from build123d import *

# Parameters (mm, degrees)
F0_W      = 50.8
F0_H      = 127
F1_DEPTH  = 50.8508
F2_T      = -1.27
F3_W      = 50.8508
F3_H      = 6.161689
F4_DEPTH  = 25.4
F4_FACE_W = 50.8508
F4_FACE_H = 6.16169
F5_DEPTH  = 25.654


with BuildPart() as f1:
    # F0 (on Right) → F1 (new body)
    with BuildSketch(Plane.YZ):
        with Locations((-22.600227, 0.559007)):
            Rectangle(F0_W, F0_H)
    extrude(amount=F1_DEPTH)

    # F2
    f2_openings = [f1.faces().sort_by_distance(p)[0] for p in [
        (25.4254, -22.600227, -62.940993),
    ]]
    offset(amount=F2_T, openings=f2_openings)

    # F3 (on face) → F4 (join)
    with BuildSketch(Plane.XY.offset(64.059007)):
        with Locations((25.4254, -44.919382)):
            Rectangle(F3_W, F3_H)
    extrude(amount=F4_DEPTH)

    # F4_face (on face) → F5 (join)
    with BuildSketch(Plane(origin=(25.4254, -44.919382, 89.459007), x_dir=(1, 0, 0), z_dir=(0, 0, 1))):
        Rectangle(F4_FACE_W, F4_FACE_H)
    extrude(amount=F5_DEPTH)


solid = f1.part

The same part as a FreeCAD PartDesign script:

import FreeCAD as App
import Part
import Sketcher
from FreeCAD import Vector
Q = App.Units.Quantity


def faces_at(feature, points):
    """Names of the faces that lie closest to the given points."""
    faces = feature.Shape.Faces
    near = lambda p: min(range(len(faces)), key=lambda i: faces[i].distToShape(Part.Vertex(*p))[0])
    return sorted({f"Face{near(p) + 1}" for p in points})

doc = App.newDocument("Part")
body = doc.addObject("PartDesign::Body", "Body")

sketch1 = doc.addObject("Sketcher::SketchObject", "Sketch")
body.addObject(sketch1)
sketch1.AttachmentSupport = (doc.YZ_Plane, [""])
sketch1.MapMode = "FlatFace"
sketch1.addGeometry([
    Part.LineSegment(Vector(-48, 64, 0), Vector(-48, -63, 0)),
    Part.LineSegment(Vector(-48, -63, 0), Vector(3, -63, 0)),
    Part.LineSegment(Vector(3, -63, 0), Vector(3, 64, 0)),
    Part.LineSegment(Vector(3, 64, 0), Vector(-48, 64, 0)),
], False)
sketch1.addConstraint([
    Sketcher.Constraint("Coincident", 0, 2, 1, 1),
    Sketcher.Constraint("Coincident", 1, 2, 2, 1),
    Sketcher.Constraint("Coincident", 2, 2, 3, 1),
    Sketcher.Constraint("Coincident", 3, 2, 0, 1),
    Sketcher.Constraint("Vertical", 0),
    Sketcher.Constraint("Horizontal", 1),
    Sketcher.Constraint("Vertical", 2),
    Sketcher.Constraint("Horizontal", 3),
    Sketcher.Constraint("DistanceX", 1, 1, 1, 2, Q("2 in")),
    Sketcher.Constraint("DistanceY", 0, 2, 0, 1, Q("5 in")),
    Sketcher.Constraint("DistanceX", 0, 2, -1, 1, 48.000227),
    Sketcher.Constraint("DistanceY", 0, 2, -1, 1, 62.940993),
])
pad1 = doc.addObject("PartDesign::Pad", "Pad")
body.addObject(pad1)
pad1.Profile = sketch1
pad1.Length = Q("2.002 in")
doc.recompute()

thickness = doc.addObject("PartDesign::Thickness", "Thickness")
body.addObject(thickness)
thickness.Base = (pad1, faces_at(pad1, [(25.425, -22.6, -62.941)]))
thickness.Value = Q("0.05 in")
thickness.Reversed = True
thickness.Join = "Arc"

sketch2 = doc.addObject("Sketcher::SketchObject", "Sketch001")
body.addObject(sketch2)
sketch2.AttachmentSupport = (doc.XY_Plane, [""])
sketch2.MapMode = "FlatFace"
sketch2.AttachmentOffset = App.Placement(Vector(0, 0, 64.059007), App.Rotation())
sketch2.addGeometry([
    Part.LineSegment(Vector(0, -42, 0), Vector(0, -48, 0)),
    Part.LineSegment(Vector(0, -48, 0), Vector(51, -48, 0)),
    Part.LineSegment(Vector(51, -48, 0), Vector(51, -42, 0)),
    Part.LineSegment(Vector(51, -42, 0), Vector(0, -42, 0)),
], False)
sketch2.addConstraint([
    Sketcher.Constraint("Coincident", 0, 2, 1, 1),
    Sketcher.Constraint("Coincident", 1, 2, 2, 1),
    Sketcher.Constraint("Coincident", 2, 2, 3, 1),
    Sketcher.Constraint("Coincident", 3, 2, 0, 1),
    Sketcher.Constraint("Vertical", 0),
    Sketcher.Constraint("Horizontal", 1),
    Sketcher.Constraint("Vertical", 2),
    Sketcher.Constraint("Horizontal", 3),
    Sketcher.Constraint("PointOnObject", 0, 2, -2),
    Sketcher.Constraint("DistanceX", 1, 1, 1, 2, Q("2.002 in")),
    Sketcher.Constraint("DistanceY", 0, 2, 0, 1, 6.161689),
    Sketcher.Constraint("DistanceY", 0, 2, -1, 1, 48.000226),
])
pad2 = doc.addObject("PartDesign::Pad", "Pad001")
body.addObject(pad2)
pad2.Profile = sketch2
pad2.Length = Q("1 in")

sketch3 = doc.addObject("Sketcher::SketchObject", "Sketch002")
body.addObject(sketch3)
sketch3.AttachmentSupport = (doc.XY_Plane, [""])
sketch3.MapMode = "FlatFace"
sketch3.AttachmentOffset = App.Placement(Vector(0, 0, 89.459007), App.Rotation())
sketch3.addGeometry([
    Part.LineSegment(Vector(0, -42, 0), Vector(0, -48, 0)),
    Part.LineSegment(Vector(0, -48, 0), Vector(51, -48, 0)),
    Part.LineSegment(Vector(51, -48, 0), Vector(51, -42, 0)),
    Part.LineSegment(Vector(51, -42, 0), Vector(0, -42, 0)),
], False)
sketch3.addConstraint([
    Sketcher.Constraint("Coincident", 0, 2, 1, 1),
    Sketcher.Constraint("Coincident", 1, 2, 2, 1),
    Sketcher.Constraint("Coincident", 2, 2, 3, 1),
    Sketcher.Constraint("Coincident", 3, 2, 0, 1),
    Sketcher.Constraint("Vertical", 0),
    Sketcher.Constraint("Horizontal", 1),
    Sketcher.Constraint("Vertical", 2),
    Sketcher.Constraint("Horizontal", 3),
    Sketcher.Constraint("PointOnObject", 0, 2, -2),
    Sketcher.Constraint("DistanceX", 1, 1, 1, 2, Q("2.002 in")),
    Sketcher.Constraint("DistanceY", 0, 2, 0, 1, 6.16169),
    Sketcher.Constraint("DistanceY", 0, 2, -1, 1, 48.000227),
])
pad3 = doc.addObject("PartDesign::Pad", "Pad002")
body.addObject(pad3)
pad3.Profile = sketch3
pad3.Length = Q("1.01 in")

doc.recompute()
